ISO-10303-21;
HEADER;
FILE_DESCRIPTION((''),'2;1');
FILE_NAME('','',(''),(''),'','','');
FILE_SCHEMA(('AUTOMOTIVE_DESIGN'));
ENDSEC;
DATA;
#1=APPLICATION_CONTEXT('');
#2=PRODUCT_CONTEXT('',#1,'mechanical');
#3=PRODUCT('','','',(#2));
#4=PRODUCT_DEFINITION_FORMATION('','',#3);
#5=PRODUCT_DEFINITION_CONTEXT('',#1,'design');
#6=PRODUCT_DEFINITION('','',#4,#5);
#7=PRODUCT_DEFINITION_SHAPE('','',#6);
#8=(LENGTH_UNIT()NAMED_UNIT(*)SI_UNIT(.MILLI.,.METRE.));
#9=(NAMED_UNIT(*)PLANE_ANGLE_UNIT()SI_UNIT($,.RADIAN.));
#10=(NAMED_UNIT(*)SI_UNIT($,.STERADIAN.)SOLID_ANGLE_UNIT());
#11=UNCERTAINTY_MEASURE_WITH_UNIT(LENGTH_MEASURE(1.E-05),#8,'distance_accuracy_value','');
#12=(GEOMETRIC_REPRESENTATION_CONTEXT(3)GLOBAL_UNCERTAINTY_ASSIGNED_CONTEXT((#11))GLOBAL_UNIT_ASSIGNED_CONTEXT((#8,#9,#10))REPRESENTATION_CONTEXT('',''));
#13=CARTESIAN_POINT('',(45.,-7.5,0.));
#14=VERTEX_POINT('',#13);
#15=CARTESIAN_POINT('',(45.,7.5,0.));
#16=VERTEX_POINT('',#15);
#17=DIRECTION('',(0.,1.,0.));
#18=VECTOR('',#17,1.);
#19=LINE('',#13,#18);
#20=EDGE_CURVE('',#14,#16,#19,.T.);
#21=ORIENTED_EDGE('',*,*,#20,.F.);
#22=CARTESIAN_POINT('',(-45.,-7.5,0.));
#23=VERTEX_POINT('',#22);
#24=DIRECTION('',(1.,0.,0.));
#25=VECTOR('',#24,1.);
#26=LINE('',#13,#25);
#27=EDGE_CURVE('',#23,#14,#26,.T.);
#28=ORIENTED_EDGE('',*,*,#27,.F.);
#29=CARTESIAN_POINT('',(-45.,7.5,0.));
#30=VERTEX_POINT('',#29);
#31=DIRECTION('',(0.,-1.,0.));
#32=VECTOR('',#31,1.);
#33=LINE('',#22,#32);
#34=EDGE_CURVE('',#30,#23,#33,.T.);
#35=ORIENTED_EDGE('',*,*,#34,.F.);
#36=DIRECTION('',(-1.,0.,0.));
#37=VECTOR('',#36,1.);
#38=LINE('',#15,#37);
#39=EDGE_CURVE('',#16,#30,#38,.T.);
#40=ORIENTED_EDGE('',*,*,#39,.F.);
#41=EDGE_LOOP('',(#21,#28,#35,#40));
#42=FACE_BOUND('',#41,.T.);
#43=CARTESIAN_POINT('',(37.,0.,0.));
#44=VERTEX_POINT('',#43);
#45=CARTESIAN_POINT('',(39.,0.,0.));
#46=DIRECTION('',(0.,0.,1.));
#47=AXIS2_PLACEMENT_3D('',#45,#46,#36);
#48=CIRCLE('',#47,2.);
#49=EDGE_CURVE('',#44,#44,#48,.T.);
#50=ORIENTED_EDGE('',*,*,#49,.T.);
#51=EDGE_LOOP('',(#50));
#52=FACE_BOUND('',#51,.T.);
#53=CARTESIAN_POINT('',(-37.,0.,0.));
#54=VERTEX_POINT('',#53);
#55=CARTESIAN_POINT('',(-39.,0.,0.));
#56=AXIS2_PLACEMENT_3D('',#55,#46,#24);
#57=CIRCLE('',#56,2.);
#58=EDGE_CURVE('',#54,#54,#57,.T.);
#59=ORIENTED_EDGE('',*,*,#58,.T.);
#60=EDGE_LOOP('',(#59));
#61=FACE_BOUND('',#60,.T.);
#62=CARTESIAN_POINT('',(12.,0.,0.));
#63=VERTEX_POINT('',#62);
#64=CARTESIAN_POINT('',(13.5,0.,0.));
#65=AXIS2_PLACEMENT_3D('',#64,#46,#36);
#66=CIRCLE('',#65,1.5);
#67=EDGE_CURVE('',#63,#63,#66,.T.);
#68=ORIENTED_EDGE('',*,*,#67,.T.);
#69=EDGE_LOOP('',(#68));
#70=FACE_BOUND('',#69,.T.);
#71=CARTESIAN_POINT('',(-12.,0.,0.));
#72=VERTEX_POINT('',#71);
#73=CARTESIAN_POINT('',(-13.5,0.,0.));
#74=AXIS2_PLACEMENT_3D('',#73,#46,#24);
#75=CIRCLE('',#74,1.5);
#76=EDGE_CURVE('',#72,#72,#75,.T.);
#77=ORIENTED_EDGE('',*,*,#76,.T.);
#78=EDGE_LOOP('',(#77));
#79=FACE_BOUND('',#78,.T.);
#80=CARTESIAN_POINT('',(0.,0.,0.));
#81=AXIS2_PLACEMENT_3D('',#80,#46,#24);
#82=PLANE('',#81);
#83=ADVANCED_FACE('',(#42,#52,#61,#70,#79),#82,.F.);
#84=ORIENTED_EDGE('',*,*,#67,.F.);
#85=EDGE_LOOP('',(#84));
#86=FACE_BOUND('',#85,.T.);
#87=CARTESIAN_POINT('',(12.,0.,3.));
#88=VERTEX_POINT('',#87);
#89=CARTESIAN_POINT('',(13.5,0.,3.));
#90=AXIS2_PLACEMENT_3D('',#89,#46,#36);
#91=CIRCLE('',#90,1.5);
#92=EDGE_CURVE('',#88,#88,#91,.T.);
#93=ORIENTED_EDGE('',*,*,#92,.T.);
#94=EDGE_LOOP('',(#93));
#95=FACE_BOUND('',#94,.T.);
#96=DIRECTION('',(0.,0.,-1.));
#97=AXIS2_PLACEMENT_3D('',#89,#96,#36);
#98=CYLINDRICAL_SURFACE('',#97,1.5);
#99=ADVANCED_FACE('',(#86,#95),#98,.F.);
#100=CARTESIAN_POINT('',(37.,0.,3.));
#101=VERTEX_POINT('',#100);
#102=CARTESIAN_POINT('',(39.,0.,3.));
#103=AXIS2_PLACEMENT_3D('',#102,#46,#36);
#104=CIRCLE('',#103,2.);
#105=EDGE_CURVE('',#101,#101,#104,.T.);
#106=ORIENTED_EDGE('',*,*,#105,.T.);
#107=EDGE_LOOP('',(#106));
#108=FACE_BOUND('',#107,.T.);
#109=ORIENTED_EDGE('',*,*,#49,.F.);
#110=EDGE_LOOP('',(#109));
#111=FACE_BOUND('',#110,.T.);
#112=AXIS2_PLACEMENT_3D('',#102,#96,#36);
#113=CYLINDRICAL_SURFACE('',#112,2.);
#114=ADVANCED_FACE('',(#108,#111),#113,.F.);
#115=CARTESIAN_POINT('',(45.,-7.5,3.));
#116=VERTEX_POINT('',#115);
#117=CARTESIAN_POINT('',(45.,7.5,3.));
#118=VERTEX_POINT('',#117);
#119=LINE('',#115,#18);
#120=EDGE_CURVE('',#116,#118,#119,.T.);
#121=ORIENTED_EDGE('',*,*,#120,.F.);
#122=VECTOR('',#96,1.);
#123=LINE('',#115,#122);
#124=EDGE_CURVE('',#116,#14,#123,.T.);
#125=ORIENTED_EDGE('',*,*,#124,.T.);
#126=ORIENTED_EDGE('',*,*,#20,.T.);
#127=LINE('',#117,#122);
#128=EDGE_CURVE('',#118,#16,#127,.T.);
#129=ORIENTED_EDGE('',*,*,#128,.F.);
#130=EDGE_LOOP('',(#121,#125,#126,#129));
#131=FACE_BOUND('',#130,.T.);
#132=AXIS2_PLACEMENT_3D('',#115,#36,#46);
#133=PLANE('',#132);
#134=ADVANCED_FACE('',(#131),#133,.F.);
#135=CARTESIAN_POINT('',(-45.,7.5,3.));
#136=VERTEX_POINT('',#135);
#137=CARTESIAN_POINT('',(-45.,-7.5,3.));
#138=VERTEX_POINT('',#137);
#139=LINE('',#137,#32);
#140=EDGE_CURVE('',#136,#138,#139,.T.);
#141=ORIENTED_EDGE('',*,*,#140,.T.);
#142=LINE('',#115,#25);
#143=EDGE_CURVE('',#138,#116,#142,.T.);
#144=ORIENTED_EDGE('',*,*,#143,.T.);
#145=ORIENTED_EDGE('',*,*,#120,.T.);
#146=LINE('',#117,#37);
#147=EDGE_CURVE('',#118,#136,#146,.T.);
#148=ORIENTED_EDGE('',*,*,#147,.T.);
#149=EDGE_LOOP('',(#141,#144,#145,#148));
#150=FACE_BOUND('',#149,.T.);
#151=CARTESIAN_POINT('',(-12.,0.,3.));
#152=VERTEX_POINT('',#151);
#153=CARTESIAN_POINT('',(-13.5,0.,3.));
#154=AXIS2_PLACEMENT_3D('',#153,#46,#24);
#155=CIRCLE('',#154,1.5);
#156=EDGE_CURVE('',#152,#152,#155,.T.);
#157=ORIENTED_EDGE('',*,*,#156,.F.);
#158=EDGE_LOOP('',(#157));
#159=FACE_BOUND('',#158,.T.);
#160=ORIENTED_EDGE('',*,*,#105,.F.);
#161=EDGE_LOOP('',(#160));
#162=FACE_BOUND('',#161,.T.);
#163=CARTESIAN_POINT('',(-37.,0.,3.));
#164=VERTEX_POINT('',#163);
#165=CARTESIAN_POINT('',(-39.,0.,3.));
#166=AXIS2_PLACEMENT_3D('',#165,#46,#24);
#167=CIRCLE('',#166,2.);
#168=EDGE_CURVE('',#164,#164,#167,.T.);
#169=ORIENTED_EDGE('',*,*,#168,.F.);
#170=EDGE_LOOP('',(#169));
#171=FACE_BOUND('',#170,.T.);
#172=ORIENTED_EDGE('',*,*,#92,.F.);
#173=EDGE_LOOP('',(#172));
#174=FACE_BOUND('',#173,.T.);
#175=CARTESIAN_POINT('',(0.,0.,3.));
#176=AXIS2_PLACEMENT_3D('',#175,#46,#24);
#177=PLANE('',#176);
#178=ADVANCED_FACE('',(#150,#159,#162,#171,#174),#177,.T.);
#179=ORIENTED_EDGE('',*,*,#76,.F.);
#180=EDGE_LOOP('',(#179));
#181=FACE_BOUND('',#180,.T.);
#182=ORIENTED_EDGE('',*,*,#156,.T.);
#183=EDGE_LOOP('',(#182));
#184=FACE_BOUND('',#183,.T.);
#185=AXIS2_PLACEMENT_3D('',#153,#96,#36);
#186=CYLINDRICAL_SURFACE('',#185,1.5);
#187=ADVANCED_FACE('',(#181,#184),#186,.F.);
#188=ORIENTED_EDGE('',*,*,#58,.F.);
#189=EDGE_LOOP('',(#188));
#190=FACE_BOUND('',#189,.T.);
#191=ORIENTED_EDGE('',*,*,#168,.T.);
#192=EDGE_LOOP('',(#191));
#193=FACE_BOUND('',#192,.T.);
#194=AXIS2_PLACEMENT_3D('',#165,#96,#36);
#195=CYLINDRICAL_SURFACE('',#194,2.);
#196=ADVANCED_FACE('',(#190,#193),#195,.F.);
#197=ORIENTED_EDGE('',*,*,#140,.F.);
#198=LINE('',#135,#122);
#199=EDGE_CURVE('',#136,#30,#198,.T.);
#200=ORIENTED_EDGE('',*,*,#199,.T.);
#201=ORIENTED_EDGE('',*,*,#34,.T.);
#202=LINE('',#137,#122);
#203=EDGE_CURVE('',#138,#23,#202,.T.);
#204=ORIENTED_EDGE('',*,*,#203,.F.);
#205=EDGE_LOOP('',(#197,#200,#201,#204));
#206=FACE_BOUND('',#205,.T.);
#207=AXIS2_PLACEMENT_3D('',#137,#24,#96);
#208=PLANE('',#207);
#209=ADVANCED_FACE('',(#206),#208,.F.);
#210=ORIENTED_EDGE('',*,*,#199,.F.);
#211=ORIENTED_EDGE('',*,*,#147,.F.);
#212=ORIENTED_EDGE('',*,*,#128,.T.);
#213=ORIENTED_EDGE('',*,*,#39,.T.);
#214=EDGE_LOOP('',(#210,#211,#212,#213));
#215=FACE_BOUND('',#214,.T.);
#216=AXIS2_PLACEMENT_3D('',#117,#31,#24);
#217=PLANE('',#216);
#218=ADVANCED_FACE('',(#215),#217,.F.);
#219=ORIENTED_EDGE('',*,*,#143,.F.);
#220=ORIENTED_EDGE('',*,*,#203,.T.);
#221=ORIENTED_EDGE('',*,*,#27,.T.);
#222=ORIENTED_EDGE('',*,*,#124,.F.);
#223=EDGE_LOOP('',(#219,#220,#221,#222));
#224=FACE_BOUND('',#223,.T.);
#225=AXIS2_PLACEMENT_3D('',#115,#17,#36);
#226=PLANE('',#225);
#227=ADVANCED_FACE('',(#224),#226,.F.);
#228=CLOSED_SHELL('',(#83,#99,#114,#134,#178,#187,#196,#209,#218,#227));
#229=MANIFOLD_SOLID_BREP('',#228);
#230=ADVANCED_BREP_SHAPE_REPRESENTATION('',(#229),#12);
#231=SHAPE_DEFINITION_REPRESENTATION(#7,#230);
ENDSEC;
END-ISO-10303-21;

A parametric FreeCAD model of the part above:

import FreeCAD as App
import Part
import Sketcher
from FreeCAD import Vector
Q = App.Units.Quantity


def add_polygon(sketch, points):
    """Adds a closed chain of lines whose ends are joined by coincident constraints."""
    first, n = sketch.GeometryCount, len(points)
    for a, b in zip(points, points[1:] + points[:1]):
        sketch.addGeometry(Part.LineSegment(App.Vector(*a, 0), App.Vector(*b, 0)), False)
    for i in range(n):
        sketch.addConstraint(Sketcher.Constraint("Coincident", first + i, 2, first + (i + 1) % n, 1))

doc = App.newDocument("Part")
body = doc.addObject("PartDesign::Body", "Body")

# Sketch on XY plane
sketch1 = body.newObject("Sketcher::SketchObject", "Sketch")
sketch1.AttachmentSupport = (doc.getObject("XY_Plane"), [""])
sketch1.MapMode = "FlatFace"
add_polygon(sketch1, [(-45, 7.5), (-45, -7.5), (45, -7.5), (45, 7.5)])  # lines 0-3
sketch1.addGeometry(Part.Circle(Vector(-39, 0, 0), Vector(0, 0, 1), 2), False)  # 4
sketch1.addGeometry(Part.Circle(Vector(-13.5, 0, 0), Vector(0, 0, 1), 1.5), False)  # 5
sketch1.addGeometry(Part.Circle(Vector(13.5, 0, 0), Vector(0, 0, 1), 1.5), False)  # 6
sketch1.addGeometry(Part.Circle(Vector(39, 0, 0), Vector(0, 0, 1), 2), False)  # 7
sketch1.addConstraint([
    Sketcher.Constraint("Vertical", 0),
    Sketcher.Constraint("Horizontal", 1),
    Sketcher.Constraint("Vertical", 2),
    Sketcher.Constraint("Horizontal", 3),
    Sketcher.Constraint("Equal", 5, 6),
    Sketcher.Constraint("Equal", 4, 7),
    Sketcher.Constraint("Symmetric", 5, 3, 6, 3, -1, 1),
    Sketcher.Constraint("Symmetric", 4, 3, 7, 3, -1, 1),
    Sketcher.Constraint("Symmetric", 0, 2, 2, 2, -1, 1),
    Sketcher.Constraint("PointOnObject", 4, 3, -1),
    Sketcher.Constraint("PointOnObject", 5, 3, -1),
    Sketcher.Constraint("Diameter", 4, Q("4 mm")),
    Sketcher.Constraint("Diameter", 5, Q("3 mm")),
    Sketcher.Constraint("DistanceX", 1, 1, 1, 2, Q("90 mm")),
    Sketcher.Constraint("DistanceY", 0, 2, 0, 1, Q("15 mm")),
    Sketcher.Constraint("DistanceX", 4, 3, -1, 1, Q("39 mm")),
    Sketcher.Constraint("DistanceX", 5, 3, 6, 3, Q("27 mm")),
])
pad1 = body.newObject("PartDesign::Pad", "Pad")
pad1.Profile = sketch1
pad1.Length = 3

doc.recompute()
